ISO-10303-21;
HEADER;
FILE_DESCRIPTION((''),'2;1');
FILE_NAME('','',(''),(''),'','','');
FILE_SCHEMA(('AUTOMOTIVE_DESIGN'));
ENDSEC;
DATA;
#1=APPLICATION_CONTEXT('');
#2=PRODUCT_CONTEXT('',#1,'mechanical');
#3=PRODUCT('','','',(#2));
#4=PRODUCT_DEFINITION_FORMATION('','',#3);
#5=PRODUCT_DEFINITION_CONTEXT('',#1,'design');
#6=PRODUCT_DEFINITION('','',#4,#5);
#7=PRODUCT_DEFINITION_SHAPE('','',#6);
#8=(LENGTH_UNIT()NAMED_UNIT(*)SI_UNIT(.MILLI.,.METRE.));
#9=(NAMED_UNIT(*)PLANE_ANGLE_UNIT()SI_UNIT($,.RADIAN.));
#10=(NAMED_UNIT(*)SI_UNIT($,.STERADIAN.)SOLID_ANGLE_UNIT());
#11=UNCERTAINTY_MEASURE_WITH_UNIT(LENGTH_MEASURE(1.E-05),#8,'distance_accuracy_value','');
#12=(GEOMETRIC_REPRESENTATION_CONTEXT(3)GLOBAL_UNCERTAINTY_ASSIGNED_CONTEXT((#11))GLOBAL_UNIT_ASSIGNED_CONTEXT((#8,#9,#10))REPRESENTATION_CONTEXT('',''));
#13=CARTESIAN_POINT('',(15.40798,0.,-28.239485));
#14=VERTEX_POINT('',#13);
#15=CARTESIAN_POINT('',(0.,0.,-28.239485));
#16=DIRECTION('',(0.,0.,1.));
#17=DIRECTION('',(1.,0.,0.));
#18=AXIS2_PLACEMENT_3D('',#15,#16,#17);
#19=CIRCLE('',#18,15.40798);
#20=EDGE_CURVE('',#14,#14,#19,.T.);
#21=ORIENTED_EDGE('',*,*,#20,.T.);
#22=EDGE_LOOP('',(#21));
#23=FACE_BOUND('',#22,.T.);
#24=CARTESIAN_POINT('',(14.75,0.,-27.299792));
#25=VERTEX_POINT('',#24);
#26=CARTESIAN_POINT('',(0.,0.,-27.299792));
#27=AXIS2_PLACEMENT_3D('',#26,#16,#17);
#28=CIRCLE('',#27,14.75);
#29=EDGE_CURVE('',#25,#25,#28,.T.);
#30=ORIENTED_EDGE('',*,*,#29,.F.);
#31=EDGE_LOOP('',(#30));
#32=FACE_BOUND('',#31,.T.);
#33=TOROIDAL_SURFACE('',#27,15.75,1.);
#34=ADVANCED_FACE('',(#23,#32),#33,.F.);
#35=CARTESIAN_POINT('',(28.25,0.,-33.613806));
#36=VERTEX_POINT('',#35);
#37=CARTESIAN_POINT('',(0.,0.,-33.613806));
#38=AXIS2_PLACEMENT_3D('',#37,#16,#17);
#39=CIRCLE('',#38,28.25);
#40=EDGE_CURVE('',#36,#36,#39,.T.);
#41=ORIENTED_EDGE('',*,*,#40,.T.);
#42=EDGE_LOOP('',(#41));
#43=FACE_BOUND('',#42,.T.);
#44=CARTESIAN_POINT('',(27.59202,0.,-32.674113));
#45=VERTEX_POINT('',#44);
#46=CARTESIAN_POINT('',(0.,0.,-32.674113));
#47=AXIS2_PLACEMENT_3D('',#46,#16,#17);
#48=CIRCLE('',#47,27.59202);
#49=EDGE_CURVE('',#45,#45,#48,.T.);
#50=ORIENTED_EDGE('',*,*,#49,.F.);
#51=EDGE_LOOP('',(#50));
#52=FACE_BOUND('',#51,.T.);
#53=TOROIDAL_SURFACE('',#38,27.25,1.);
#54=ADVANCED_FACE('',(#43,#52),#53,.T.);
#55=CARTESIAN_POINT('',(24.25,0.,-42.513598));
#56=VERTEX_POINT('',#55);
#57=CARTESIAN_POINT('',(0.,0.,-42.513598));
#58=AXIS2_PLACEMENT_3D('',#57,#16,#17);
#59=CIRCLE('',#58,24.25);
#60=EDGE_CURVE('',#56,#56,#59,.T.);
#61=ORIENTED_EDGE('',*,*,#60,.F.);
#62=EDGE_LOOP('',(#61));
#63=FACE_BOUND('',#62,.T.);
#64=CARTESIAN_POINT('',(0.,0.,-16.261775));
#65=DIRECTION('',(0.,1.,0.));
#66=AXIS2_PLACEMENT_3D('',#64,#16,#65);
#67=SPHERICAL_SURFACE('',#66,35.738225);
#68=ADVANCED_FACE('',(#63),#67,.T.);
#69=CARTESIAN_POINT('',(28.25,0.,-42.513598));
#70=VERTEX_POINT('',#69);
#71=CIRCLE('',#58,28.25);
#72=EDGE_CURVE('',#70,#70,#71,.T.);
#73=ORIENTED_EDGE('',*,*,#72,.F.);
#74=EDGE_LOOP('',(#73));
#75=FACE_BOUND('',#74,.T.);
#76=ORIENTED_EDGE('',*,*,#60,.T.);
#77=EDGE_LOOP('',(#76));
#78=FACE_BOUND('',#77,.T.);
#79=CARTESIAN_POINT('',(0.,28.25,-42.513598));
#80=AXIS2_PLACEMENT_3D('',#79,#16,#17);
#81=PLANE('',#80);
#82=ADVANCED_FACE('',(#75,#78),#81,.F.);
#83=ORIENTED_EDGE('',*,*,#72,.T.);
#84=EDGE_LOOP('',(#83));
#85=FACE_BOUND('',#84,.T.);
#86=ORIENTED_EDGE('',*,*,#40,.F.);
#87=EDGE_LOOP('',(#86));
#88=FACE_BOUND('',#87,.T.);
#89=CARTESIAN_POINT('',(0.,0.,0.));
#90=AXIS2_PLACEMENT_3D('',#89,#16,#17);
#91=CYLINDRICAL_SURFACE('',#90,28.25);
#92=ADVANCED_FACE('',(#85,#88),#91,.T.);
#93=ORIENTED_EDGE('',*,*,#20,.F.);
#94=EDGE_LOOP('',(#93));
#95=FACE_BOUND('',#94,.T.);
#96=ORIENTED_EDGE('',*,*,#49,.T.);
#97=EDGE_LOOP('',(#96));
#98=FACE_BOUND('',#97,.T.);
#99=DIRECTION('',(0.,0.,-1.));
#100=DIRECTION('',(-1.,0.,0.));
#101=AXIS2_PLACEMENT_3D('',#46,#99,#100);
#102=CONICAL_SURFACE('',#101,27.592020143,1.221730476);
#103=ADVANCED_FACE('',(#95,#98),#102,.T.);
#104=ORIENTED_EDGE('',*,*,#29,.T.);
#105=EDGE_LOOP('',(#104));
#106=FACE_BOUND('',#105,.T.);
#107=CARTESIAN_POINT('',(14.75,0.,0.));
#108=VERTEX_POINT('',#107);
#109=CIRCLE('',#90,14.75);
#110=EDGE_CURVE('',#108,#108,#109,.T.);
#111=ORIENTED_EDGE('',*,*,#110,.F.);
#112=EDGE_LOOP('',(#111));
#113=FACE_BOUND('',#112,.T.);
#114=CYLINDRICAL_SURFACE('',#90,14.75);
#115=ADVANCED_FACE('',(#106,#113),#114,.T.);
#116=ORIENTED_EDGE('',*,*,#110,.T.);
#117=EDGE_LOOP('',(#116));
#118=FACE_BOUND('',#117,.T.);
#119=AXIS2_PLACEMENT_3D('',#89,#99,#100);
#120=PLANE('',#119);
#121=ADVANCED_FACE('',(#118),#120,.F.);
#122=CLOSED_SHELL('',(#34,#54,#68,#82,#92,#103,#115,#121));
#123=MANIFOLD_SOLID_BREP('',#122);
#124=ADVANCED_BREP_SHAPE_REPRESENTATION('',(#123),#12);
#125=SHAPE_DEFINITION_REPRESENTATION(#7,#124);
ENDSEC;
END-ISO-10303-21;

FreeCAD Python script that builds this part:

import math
import FreeCAD as App
import Part
import Sketcher
Q = App.Units.Quantity

doc = App.newDocument("Part")
body = doc.addObject("PartDesign::Body", "Body")

# Sketch on YZ plane
sketch1 = doc.addObject("Sketcher::SketchObject", "Sketch")
body.addObject(sketch1)
sketch1.AttachmentSupport = (doc.YZ_Plane, [""])
sketch1.MapMode = "FlatFace"
sketch1.addGeometry(Part.LineSegment(App.Vector(14.75, 0, 0), App.Vector(0, 0, 0)), False)
sketch1.addGeometry(Part.LineSegment(App.Vector(0, 0, 0), App.Vector(0, -52, 0)), False)
sketch1.addGeometry(Part.ArcOfCircle(Part.Circle(App.Vector(0, -16.261775, 0), App.Vector(0, 0, 1), 35.738225), math.radians(-90), math.radians(-47.269938)), False)
sketch1.addGeometry(Part.LineSegment(App.Vector(24.25, -42.513598, 0), App.Vector(28.25, -42.513598, 0)), False)
sketch1.addGeometry(Part.LineSegment(App.Vector(28.25, -42.513598, 0), App.Vector(28.25, -33.613806, 0)), False)
sketch1.addGeometry(Part.ArcOfCircle(Part.Circle(App.Vector(27.25, -33.613806, 0), App.Vector(0, 0, 1), 1), math.radians(0), math.radians(70)), False)
sketch1.addGeometry(Part.LineSegment(App.Vector(27.59202, -32.674113, 0), App.Vector(15.40798, -28.239485, 0)), False)
sketch1.addGeometry(Part.ArcOfCircle(Part.Circle(App.Vector(15.75, -27.299792, 0), App.Vector(0, 0, 1), 1), math.radians(-180), math.radians(-110)), False)
sketch1.addGeometry(Part.LineSegment(App.Vector(14.75, -27.299792, 0), App.Vector(14.75, 0, 0)), False)
sketch1.addConstraint(Sketcher.Constraint("Coincident", 0, 2, 1, 1))
sketch1.addConstraint(Sketcher.Constraint("Coincident", 1, 2, 2, 1))
sketch1.addConstraint(Sketcher.Constraint("Coincident", 2, 2, 3, 1))
sketch1.addConstraint(Sketcher.Constraint("Coincident", 3, 2, 4, 1))
sketch1.addConstraint(Sketcher.Constraint("Tangent", 4, 2, 5, 1))
sketch1.addConstraint(Sketcher.Constraint("Tangent", 5, 2, 6, 1))
sketch1.addConstraint(Sketcher.Constraint("Tangent", 6, 2, 7, 2))
sketch1.addConstraint(Sketcher.Constraint("Tangent", 7, 1, 8, 1))
sketch1.addConstraint(Sketcher.Constraint("Coincident", 8, 2, 0, 1))
sketch1.addConstraint(Sketcher.Constraint("Horizontal", 0))
sketch1.addConstraint(Sketcher.Constraint("Vertical", 1))
sketch1.addConstraint(Sketcher.Constraint("Horizontal", 3))
sketch1.addConstraint(Sketcher.Constraint("Vertical", 4))
sketch1.addConstraint(Sketcher.Constraint("Vertical", 8))
sketch1.addConstraint(Sketcher.Constraint("Coincident", 0, 2, -1, 1))
sketch1.addConstraint(Sketcher.Constraint("Equal", 5, 7))
sketch1.addConstraint(Sketcher.Constraint("PointOnObject", 2, 3, -2))
sketch1.addConstraint(Sketcher.Constraint("Radius", 5, 1.0))
sketch1.addConstraint(Sketcher.Constraint("DistanceX", 3, 1, 3, 2, 4.0))
sketch1.addConstraint(Sketcher.Constraint("DistanceY", 1, 2, 1, 1, 52.0))
sketch1.addConstraint(Sketcher.Constraint("Angle", 6, Q("160 deg")))
sketch1.addConstraint(Sketcher.Constraint("DistanceX", 0, 2, 0, 1, 14.75))
sketch1.addConstraint(Sketcher.Constraint("DistanceX", 7, 3, 5, 3, 11.5))
sketch1.addConstraint(Sketcher.Constraint("Radius", 2, 35.738225))
sketch1.addConstraint(Sketcher.Constraint("DistanceY", 4, 1, 4, 2, 8.899792))
revolution = doc.addObject("PartDesign::Revolution", "Revolution")
body.addObject(revolution)
revolution.Profile = sketch1
revolution.ReferenceAxis = (sketch1, ["V_Axis"])
revolution.Angle = 360

doc.recompute()
